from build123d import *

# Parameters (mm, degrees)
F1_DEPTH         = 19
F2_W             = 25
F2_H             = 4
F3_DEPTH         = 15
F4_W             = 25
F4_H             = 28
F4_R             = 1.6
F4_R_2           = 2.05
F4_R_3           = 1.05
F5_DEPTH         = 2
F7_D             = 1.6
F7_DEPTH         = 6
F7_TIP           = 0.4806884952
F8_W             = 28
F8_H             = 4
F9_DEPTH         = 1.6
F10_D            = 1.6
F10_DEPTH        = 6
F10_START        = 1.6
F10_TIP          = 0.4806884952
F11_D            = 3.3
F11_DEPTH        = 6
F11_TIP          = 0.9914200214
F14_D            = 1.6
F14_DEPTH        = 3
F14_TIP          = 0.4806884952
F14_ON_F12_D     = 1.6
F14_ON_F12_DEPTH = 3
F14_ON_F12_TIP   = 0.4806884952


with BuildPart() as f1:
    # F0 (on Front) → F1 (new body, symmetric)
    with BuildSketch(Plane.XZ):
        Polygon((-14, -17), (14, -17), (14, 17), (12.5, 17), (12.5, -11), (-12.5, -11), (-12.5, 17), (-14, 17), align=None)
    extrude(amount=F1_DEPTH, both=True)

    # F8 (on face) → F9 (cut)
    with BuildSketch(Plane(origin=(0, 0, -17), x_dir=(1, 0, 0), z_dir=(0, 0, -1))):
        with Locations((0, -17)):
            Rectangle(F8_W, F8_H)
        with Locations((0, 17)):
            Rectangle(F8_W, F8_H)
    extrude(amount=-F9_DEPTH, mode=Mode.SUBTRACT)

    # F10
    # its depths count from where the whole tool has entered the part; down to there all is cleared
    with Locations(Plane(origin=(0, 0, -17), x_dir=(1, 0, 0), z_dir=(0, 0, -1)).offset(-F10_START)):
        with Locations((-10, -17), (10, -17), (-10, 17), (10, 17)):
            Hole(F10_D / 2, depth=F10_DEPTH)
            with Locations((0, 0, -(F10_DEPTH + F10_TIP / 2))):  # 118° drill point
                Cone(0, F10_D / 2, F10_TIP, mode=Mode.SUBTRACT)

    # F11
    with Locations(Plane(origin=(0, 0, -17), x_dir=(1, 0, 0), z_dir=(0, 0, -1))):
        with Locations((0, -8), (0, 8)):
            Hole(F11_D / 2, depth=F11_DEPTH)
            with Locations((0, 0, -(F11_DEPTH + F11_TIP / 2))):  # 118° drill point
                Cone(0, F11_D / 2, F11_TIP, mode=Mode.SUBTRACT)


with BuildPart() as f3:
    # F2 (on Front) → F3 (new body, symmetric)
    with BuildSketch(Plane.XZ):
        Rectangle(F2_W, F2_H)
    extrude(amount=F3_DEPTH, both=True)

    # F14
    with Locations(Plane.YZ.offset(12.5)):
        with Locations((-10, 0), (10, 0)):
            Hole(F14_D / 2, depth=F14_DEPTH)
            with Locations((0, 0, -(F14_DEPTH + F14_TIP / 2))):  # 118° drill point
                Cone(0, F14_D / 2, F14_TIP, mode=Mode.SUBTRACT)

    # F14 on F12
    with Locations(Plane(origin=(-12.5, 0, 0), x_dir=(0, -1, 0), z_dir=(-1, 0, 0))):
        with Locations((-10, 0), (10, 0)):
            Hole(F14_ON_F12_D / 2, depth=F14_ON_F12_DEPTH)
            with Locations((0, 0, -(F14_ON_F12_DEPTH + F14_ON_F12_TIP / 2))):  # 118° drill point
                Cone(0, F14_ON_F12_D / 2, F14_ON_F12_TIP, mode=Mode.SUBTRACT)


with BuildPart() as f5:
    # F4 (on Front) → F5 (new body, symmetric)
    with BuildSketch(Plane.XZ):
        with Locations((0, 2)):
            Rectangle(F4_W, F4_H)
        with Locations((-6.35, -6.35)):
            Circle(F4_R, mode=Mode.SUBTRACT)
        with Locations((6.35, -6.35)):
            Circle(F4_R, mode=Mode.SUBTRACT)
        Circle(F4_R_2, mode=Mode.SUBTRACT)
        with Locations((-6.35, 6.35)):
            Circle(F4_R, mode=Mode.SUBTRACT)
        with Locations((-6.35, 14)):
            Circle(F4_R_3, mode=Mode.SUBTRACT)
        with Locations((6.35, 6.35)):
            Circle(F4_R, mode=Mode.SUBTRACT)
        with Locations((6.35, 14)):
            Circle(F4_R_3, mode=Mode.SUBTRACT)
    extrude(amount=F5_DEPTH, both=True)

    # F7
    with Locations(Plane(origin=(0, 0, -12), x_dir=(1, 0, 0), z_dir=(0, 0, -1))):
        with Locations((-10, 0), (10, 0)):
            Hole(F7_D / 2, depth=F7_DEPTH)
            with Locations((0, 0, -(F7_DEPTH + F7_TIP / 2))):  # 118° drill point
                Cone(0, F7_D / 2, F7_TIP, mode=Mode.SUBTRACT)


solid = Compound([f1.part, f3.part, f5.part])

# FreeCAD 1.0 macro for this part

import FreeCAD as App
import Part
import Sketcher

V = App.Vector

doc = App.newDocument("Part")
body = doc.addObject("PartDesign::Body", "Body")

# Sketch on XZ plane
sketch1 = body.newObject("Sketcher::SketchObject", "Sketch")
sketch1.AttachmentSupport = (doc.getObject("XZ_Plane"), [""])
sketch1.MapMode = "FlatFace"
sketch1.addGeometry([
    Part.LineSegment(V(-14, -17, 0), V(14, -17, 0)),  # 0
    Part.LineSegment(V(14, -17, 0), V(14, 17, 0)),  # 1
    Part.LineSegment(V(14, 17, 0), V(12.5, 17, 0)),  # 2
    Part.LineSegment(V(12.5, 17, 0), V(12.5, -11, 0)),  # 3
    Part.LineSegment(V(12.5, -11, 0), V(-12.5, -11, 0)),  # 4
    Part.LineSegment(V(-12.5, -11, 0), V(-12.5, 17, 0)),  # 5
    Part.LineSegment(V(-12.5, 17, 0), V(-14, 17, 0)),  # 6
    Part.LineSegment(V(-14, 17, 0), V(-14, -17, 0)),  # 7
], False)
sketch1.addConstraint([
    Sketcher.Constraint("Coincident", 0, 2, 1, 1),
    Sketcher.Constraint("Coincident", 1, 2, 2, 1),
    Sketcher.Constraint("Coincident", 2, 2, 3, 1),
    Sketcher.Constraint("Coincident", 3, 2, 4, 1),
    Sketcher.Constraint("Coincident", 4, 2, 5, 1),
    Sketcher.Constraint("Coincident", 5, 2, 6, 1),
    Sketcher.Constraint("Coincident", 6, 2, 7, 1),
    Sketcher.Constraint("Coincident", 7, 2, 0, 1),
    Sketcher.Constraint("Horizontal", 0),
    Sketcher.Constraint("Vertical", 1),
    Sketcher.Constraint("Horizontal", 2),
    Sketcher.Constraint("Vertical", 3),
    Sketcher.Constraint("Horizontal", 4),
    Sketcher.Constraint("Vertical", 5),
    Sketcher.Constraint("Horizontal", 6),
    Sketcher.Constraint("Vertical", 7),
    Sketcher.Constraint("Symmetric", 0, 2, 6, 2, -1, 1),
    Sketcher.Constraint("Symmetric", 2, 2, 5, 2, -2),
    Sketcher.Constraint("Equal", 0, 3),
    Sketcher.Constraint("DistanceX", 0, 1, 0, 2, 28.0),
    Sketcher.Constraint("DistanceX", 4, 2, 4, 1, 25.0),
    Sketcher.Constraint("DistanceY", 1, 1, 1, 2, 34.0),
])
pad1 = body.newObject("PartDesign::Pad", "Pad")
pad1.Profile = sketch1
pad1.Length = 38
pad1.Midplane = True

# Sketch on XY plane
sketch2 = body.newObject("Sketcher::SketchObject", "Sketch001")
sketch2.AttachmentSupport = (doc.getObject("XY_Plane"), [""])
sketch2.MapMode = "FlatFace"
sketch2.AttachmentOffset = App.Placement(V(0, 0, -17), App.Rotation())
sketch2.addGeometry([
    Part.LineSegment(V(-14, 15, 0), V(-14, 19, 0)),  # 0
    Part.LineSegment(V(-14, 19, 0), V(14, 19, 0)),  # 1
    Part.LineSegment(V(14, 19, 0), V(14, 15, 0)),  # 2
    Part.LineSegment(V(14, 15, 0), V(-14, 15, 0)),  # 3
    Part.LineSegment(V(-14, -19, 0), V(-14, -15, 0)),  # 4
    Part.LineSegment(V(-14, -15, 0), V(14, -15, 0)),  # 5
    Part.LineSegment(V(14, -15, 0), V(14, -19, 0)),  # 6
    Part.LineSegment(V(14, -19, 0), V(-14, -19, 0)),  # 7
], False)
sketch2.addConstraint([
    Sketcher.Constraint("Coincident", 0, 2, 1, 1),
    Sketcher.Constraint("Coincident", 1, 2, 2, 1),
    Sketcher.Constraint("Coincident", 2, 2, 3, 1),
    Sketcher.Constraint("Coincident", 3, 2, 0, 1),
    Sketcher.Constraint("Coincident", 4, 2, 5, 1),
    Sketcher.Constraint("Coincident", 5, 2, 6, 1),
    Sketcher.Constraint("Coincident", 6, 2, 7, 1),
    Sketcher.Constraint("Coincident", 7, 2, 4, 1),
    Sketcher.Constraint("Vertical", 0),
    Sketcher.Constraint("Horizontal", 1),
    Sketcher.Constraint("Vertical", 2),
    Sketcher.Constraint("Horizontal", 3),
    Sketcher.Constraint("Vertical", 4),
    Sketcher.Constraint("Horizontal", 5),
    Sketcher.Constraint("Vertical", 6),
    Sketcher.Constraint("Horizontal", 7),
    Sketcher.Constraint("Symmetric", 2, 2, 4, 2, -1, 1),
    Sketcher.Constraint("Symmetric", 0, 2, 6, 2, -1, 1),
    Sketcher.Constraint("Vertical", 3, 2, 4, 2),
    Sketcher.Constraint("DistanceX", 1, 1, 1, 2, 28.0),
    Sketcher.Constraint("DistanceY", 0, 1, 0, 2, 4.0),
    Sketcher.Constraint("DistanceY", -1, 1, 0, 2, 19.0),
])
pocket1 = body.newObject("PartDesign::Pocket", "Pocket")
pocket1.Profile = sketch2
pocket1.Length = 1.6
pocket1.Reversed = True

# Sketch on XY plane
sketch3 = body.newObject("Sketcher::SketchObject", "Sketch002")
sketch3.AttachmentSupport = (doc.getObject("XY_Plane"), [""])
sketch3.MapMode = "FlatFace"
sketch3.AttachmentOffset = App.Placement(V(0, 0, -15.4), App.Rotation())
sketch3.addGeometry([
    Part.Circle(V(-10, 17, 0), V(0, 0, 1), 0.8),
    Part.Circle(V(10, 17, 0), V(0, 0, 1), 0.8),
    Part.Circle(V(-10, -17, 0), V(0, 0, 1), 0.8),
    Part.Circle(V(10, -17, 0), V(0, 0, 1), 0.8),
], False)
sketch3.addConstraint([
    Sketcher.Constraint("Equal", 0, 1),
    Sketcher.Constraint("Equal", 1, 2),
    Sketcher.Constraint("Equal", 2, 3),
    Sketcher.Constraint("Symmetric", 1, 3, 2, 3, -1, 1),
    Sketcher.Constraint("Symmetric", 0, 3, 3, 3, -1, 1),
    Sketcher.Constraint("Symmetric", 0, 3, 1, 3, -2),
    Sketcher.Constraint("Diameter", 0, 1.6),
    Sketcher.Constraint("DistanceX", 0, 3, -1, 1, 10.0),
    Sketcher.Constraint("DistanceY", -1, 1, 0, 3, 17.0),
])
doc.recompute()
hole = body.newObject("PartDesign::Hole", "Hole")
hole.Profile = sketch3
hole.ThreadType = "None"
hole.Diameter = 1.6
hole.DepthType = "Dimension"
hole.Depth = 6
hole.DrillPoint = "Angled"
hole.DrillPointAngle = 118
hole.Reversed = True

# Sketch on XY plane
sketch4 = body.newObject("Sketcher::SketchObject", "Sketch003")
sketch4.AttachmentSupport = (doc.getObject("XY_Plane"), [""])
sketch4.MapMode = "FlatFace"
sketch4.AttachmentOffset = App.Placement(V(0, 0, -17), App.Rotation())
sketch4.addGeometry([
    Part.Circle(V(0, 8, 0), V(0, 0, 1), 1.6),
    Part.Circle(V(0, -8, 0), V(0, 0, 1), 1.6),
], False)
sketch4.addConstraint([
    Sketcher.Constraint("Equal", 0, 1),
    Sketcher.Constraint("Symmetric", 0, 3, 1, 3, -1, 1),
    Sketcher.Constraint("PointOnObject", 0, 3, -2),
    Sketcher.Constraint("Diameter", 0, 3.3),
    Sketcher.Constraint("DistanceY", -1, 1, 0, 3, 8.0),
])
doc.recompute()
hole2 = body.newObject("PartDesign::Hole", "Hole001")
hole2.Profile = sketch4
hole2.ThreadType = "None"
hole2.Diameter = 3.3
hole2.DepthType = "Dimension"
hole2.Depth = 6
hole2.DrillPoint = "Angled"
hole2.DrillPointAngle = 118
hole2.Reversed = True
body2 = doc.addObject("PartDesign::Body", "Body001")

# Sketch on XZ plane
sketch5 = body2.newObject("Sketcher::SketchObject", "Sketch004")
sketch5.AttachmentSupport = (doc.getObject("XZ_Plane001"), [""])
sketch5.MapMode = "FlatFace"
sketch5.addGeometry([
    Part.LineSegment(V(-12.5, 2, 0), V(-12.5, -2, 0)),
    Part.LineSegment(V(-12.5, -2, 0), V(12.5, -2, 0)),
    Part.LineSegment(V(12.5, -2, 0), V(12.5, 2, 0)),
    Part.LineSegment(V(12.5, 2, 0), V(-12.5, 2, 0)),
], False)
sketch5.addConstraint([
    Sketcher.Constraint("Coincident", 0, 2, 1, 1),
    Sketcher.Constraint("Coincident", 1, 2, 2, 1),
    Sketcher.Constraint("Coincident", 2, 2, 3, 1),
    Sketcher.Constraint("Coincident", 3, 2, 0, 1),
    Sketcher.Constraint("Vertical", 0),
    Sketcher.Constraint("Horizontal", 1),
    Sketcher.Constraint("Vertical", 2),
    Sketcher.Constraint("Horizontal", 3),
    Sketcher.Constraint("Symmetric", 0, 2, 2, 2, -1, 1),
    Sketcher.Constraint("DistanceX", 1, 1, 1, 2, 25.0),
    Sketcher.Constraint("DistanceY", 0, 2, 0, 1, 4.0),
])
pad2 = body2.newObject("PartDesign::Pad", "Pad001")
pad2.Profile = sketch5
pad2.Length = 30
pad2.Midplane = True

# Sketch on YZ plane
sketch6 = body2.newObject("Sketcher::SketchObject", "Sketch005")
sketch6.AttachmentSupport = (doc.getObject("YZ_Plane001"), [""])
sketch6.MapMode = "FlatFace"
sketch6.AttachmentOffset = App.Placement(V(0, 0, 12.5), App.Rotation())
sketch6.addGeometry([
    Part.Circle(V(-10, 0, 0), V(0, 0, 1), 0.8),
    Part.Circle(V(10, 0, 0), V(0, 0, 1), 0.8),
], False)
sketch6.addConstraint([
    Sketcher.Constraint("Equal", 0, 1),
    Sketcher.Constraint("Symmetric", 0, 3, 1, 3, -1, 1),
    Sketcher.Constraint("PointOnObject", 0, 3, -1),
    Sketcher.Constraint("Diameter", 0, 1.6),
    Sketcher.Constraint("DistanceX", 0, 3, -1, 1, 10.0),
])
doc.recompute()
hole3 = body2.newObject("PartDesign::Hole", "Hole002")
hole3.Profile = sketch6
hole3.ThreadType = "None"
hole3.Diameter = 1.6
hole3.DepthType = "Dimension"
hole3.Depth = 3
hole3.DrillPoint = "Angled"
hole3.DrillPointAngle = 118

# Sketch on YZ plane
sketch7 = body2.newObject("Sketcher::SketchObject", "Sketch006")
sketch7.AttachmentSupport = (doc.getObject("YZ_Plane001"), [""])
sketch7.MapMode = "FlatFace"
sketch7.AttachmentOffset = App.Placement(V(0, 0, -12.5), App.Rotation())
sketch7.addGeometry([
    Part.Circle(V(10, 0, 0), V(0, 0, 1), 0.8),
    Part.Circle(V(-10, 0, 0), V(0, 0, 1), 0.8),
], False)
sketch7.addConstraint([
    Sketcher.Constraint("Equal", 0, 1),
    Sketcher.Constraint("Symmetric", 0, 3, 1, 3, -1, 1),
    Sketcher.Constraint("PointOnObject", 0, 3, -1),
    Sketcher.Constraint("Diameter", 0, 1.6),
    Sketcher.Constraint("DistanceX", -1, 1, 0, 3, 10.0),
])
doc.recompute()
hole4 = body2.newObject("PartDesign::Hole", "Hole003")
hole4.Profile = sketch7
hole4.ThreadType = "None"
hole4.Diameter = 1.6
hole4.DepthType = "Dimension"
hole4.Depth = 3
hole4.DrillPoint = "Angled"
hole4.DrillPointAngle = 118
hole4.Reversed = True
body3 = doc.addObject("PartDesign::Body", "Body002")

# Sketch on XZ plane
sketch8 = body3.newObject("Sketcher::SketchObject", "Sketch007")
sketch8.AttachmentSupport = (doc.getObject("XZ_Plane002"), [""])
sketch8.MapMode = "FlatFace"
sketch8.addGeometry([
    Part.LineSegment(V(-12.5, 16, 0), V(-12.5, -12, 0)),  # 0
    Part.LineSegment(V(-12.5, -12, 0), V(12.5, -12, 0)),  # 1
    Part.LineSegment(V(12.5, -12, 0), V(12.5, 16, 0)),  # 2
    Part.LineSegment(V(12.5, 16, 0), V(-12.5, 16, 0)),  # 3
    Part.Circle(V(-6.3, -6.3, 0), V(0, 0, 1), 1.6),  # 4
    Part.Circle(V(0, 0, 0), V(0, 0, 1), 2),  # 5
    Part.Circle(V(6.3, -6.3, 0), V(0, 0, 1), 1.6),  # 6
    Part.Circle(V(-6.3, 6.3, 0), V(0, 0, 1), 1.6),  # 7
    Part.Circle(V(-6.3, 14, 0), V(0, 0, 1), 1.1),  # 8
    Part.Circle(V(6.3, 6.3, 0), V(0, 0, 1), 1.6),  # 9
    Part.Circle(V(6.3, 14, 0), V(0, 0, 1), 1.1),  # 10
], False)
sketch8.addConstraint([
    Sketcher.Constraint("Coincident", 0, 2, 1, 1),
    Sketcher.Constraint("Coincident", 1, 2, 2, 1),
    Sketcher.Constraint("Coincident", 2, 2, 3, 1),
    Sketcher.Constraint("Coincident", 3, 2, 0, 1),
    Sketcher.Constraint("Vertical", 0),
    Sketcher.Constraint("Horizontal", 1),
    Sketcher.Constraint("Vertical", 2),
    Sketcher.Constraint("Horizontal", 3),
    Sketcher.Constraint("Coincident", 5, 3, -1, 1),
    Sketcher.Constraint("Equal", 4, 6),
    Sketcher.Constraint("Equal", 6, 7),
    Sketcher.Constraint("Equal", 7, 9),
    Sketcher.Constraint("Equal", 8, 10),
    Sketcher.Constraint("Symmetric", 6, 3, 7, 3, -1, 1),
    Sketcher.Constraint("Symmetric", 4, 3, 9, 3, -1, 1),
    Sketcher.Constraint("Symmetric", 4, 3, 6, 3, -2),
    Sketcher.Constraint("Symmetric", 8, 3, 10, 3, -2),
    Sketcher.Constraint("Vertical", 7, 3, 8, 3),
    Sketcher.Constraint("Diameter", 4, 3.2),
    Sketcher.Constraint("Diameter", 5, 4.1),
    Sketcher.Constraint("Diameter", 8, 2.1),
    Sketcher.Constraint("DistanceX", 1, 1, 1, 2, 25.0),
    Sketcher.Constraint("DistanceY", 0, 2, 0, 1, 28.0),
    Sketcher.Constraint("DistanceY", -1, 1, 8, 3, 14.0),
    Sketcher.Constraint("DistanceY", 0, 2, -1, 1, 12.0),
    Sketcher.Constraint("DistanceX", 0, 2, -1, 1, 12.5),
    Sketcher.Constraint("DistanceX", 4, 3, 6, 3, 12.7),
    Sketcher.Constraint("DistanceY", 4, 3, 7, 3, 12.7),
])
pad3 = body3.newObject("PartDesign::Pad", "Pad002")
pad3.Profile = sketch8
pad3.Length = 4
pad3.Midplane = True

# Sketch on XY plane
sketch9 = body3.newObject("Sketcher::SketchObject", "Sketch008")
sketch9.AttachmentSupport = (doc.getObject("XY_Plane002"), [""])
sketch9.MapMode = "FlatFace"
sketch9.AttachmentOffset = App.Placement(V(0, 0, -12), App.Rotation())
sketch9.addGeometry([
    Part.Circle(V(-10, 0, 0), V(0, 0, 1), 0.8),
    Part.Circle(V(10, 0, 0), V(0, 0, 1), 0.8),
], False)
sketch9.addConstraint([
    Sketcher.Constraint("Equal", 0, 1),
    Sketcher.Constraint("Symmetric", 0, 3, 1, 3, -1, 1),
    Sketcher.Constraint("PointOnObject", 0, 3, -1),
    Sketcher.Constraint("Diameter", 0, 1.6),
    Sketcher.Constraint("DistanceX", 0, 3, -1, 1, 10.0),
])
doc.recompute()
hole5 = body3.newObject("PartDesign::Hole", "Hole004")
hole5.Profile = sketch9
hole5.ThreadType = "None"
hole5.Diameter = 1.6
hole5.DepthType = "Dimension"
hole5.Depth = 6
hole5.DrillPoint = "Angled"
hole5.DrillPointAngle = 118
hole5.Reversed = True

doc.recompute()
